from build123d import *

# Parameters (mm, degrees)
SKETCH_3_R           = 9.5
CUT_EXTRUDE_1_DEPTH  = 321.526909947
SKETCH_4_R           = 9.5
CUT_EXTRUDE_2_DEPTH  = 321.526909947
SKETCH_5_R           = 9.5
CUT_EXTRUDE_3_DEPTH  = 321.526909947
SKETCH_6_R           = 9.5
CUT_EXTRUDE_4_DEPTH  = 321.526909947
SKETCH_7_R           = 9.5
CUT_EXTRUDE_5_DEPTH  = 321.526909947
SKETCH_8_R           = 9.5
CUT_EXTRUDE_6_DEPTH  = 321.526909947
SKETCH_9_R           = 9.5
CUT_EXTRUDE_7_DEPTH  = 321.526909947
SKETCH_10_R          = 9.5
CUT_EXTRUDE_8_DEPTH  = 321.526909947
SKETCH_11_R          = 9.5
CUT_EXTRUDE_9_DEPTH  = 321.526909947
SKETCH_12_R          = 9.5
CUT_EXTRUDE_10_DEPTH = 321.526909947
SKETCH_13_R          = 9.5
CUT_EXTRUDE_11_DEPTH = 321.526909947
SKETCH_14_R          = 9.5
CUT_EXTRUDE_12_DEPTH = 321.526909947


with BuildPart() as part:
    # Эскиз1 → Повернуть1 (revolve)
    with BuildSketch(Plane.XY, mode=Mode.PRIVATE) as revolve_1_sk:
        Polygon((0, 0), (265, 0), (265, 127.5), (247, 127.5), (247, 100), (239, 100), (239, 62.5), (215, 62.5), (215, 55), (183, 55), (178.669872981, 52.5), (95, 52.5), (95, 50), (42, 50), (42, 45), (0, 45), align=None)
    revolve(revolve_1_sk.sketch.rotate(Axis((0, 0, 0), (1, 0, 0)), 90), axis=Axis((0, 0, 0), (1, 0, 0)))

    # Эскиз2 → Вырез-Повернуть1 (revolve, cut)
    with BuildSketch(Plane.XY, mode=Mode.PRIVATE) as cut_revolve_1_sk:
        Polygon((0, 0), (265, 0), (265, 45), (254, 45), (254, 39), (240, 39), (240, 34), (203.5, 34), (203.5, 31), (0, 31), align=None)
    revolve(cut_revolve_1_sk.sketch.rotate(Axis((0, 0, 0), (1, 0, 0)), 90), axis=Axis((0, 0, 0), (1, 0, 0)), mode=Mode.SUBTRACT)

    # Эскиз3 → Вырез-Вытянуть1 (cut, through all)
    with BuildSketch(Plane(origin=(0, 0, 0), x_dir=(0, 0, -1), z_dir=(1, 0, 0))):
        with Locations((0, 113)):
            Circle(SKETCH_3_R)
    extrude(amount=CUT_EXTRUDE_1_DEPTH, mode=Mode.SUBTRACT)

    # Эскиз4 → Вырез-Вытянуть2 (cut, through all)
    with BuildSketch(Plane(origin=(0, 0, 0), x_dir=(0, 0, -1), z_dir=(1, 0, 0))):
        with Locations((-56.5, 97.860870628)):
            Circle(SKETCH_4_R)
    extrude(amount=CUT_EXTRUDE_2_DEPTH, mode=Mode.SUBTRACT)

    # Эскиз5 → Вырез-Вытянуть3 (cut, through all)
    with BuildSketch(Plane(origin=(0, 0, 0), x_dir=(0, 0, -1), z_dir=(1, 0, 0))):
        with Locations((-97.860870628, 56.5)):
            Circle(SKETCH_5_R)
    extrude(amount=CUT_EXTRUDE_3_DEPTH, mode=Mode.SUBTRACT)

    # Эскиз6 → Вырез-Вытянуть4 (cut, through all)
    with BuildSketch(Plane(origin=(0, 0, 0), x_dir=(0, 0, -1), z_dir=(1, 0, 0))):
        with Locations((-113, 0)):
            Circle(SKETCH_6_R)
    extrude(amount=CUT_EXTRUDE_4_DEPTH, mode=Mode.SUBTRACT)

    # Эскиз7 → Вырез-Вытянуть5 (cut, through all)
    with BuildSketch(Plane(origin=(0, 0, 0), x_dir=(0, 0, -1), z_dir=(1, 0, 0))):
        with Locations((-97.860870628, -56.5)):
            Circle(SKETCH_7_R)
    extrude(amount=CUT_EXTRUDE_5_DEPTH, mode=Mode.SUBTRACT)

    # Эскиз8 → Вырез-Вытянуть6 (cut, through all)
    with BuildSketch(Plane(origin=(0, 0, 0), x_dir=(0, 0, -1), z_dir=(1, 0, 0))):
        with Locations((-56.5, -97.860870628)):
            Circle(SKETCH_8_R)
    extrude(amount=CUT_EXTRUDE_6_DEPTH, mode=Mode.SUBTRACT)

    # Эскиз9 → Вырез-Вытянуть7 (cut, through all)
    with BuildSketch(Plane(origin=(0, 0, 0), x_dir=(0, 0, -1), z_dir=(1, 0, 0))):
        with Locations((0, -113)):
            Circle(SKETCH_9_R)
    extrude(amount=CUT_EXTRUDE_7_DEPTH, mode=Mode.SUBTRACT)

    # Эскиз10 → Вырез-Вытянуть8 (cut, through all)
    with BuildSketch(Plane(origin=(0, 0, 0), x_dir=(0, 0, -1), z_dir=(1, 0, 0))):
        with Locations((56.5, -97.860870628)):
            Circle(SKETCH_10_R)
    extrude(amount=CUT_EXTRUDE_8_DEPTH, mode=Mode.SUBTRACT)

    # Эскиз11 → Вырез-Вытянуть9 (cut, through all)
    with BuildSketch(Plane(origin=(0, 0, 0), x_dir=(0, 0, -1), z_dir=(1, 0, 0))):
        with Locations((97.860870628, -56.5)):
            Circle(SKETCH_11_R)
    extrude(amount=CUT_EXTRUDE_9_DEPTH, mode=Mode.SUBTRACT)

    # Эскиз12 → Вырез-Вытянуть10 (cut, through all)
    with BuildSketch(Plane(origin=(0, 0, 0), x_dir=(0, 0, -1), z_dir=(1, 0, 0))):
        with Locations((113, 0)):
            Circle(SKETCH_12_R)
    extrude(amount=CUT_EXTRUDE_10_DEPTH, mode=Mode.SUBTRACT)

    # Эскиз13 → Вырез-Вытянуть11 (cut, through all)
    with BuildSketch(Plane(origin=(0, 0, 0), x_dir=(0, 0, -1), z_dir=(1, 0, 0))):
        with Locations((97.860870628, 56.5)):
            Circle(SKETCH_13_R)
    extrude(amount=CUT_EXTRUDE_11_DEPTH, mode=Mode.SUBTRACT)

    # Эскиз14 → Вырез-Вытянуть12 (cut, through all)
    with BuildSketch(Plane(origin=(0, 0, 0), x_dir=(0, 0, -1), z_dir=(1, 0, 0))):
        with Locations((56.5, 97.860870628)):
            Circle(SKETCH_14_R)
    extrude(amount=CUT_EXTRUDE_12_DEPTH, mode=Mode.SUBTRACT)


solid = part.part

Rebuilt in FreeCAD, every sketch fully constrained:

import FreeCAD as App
import Part
import Sketcher
from FreeCAD import Vector
Q = App.Units.Quantity

doc = App.newDocument("Part")
body = doc.addObject("PartDesign::Body", "Body")

sketch1 = doc.addObject("Sketcher::SketchObject", "Sketch")
body.addObject(sketch1)
sketch1.AttachmentSupport = (doc.XY_Plane, [""])
sketch1.MapMode = "FlatFace"
sketch1.addGeometry(Part.LineSegment(Vector(0, 0, 0), Vector(265, 0, 0)), False)
sketch1.addGeometry(Part.LineSegment(Vector(265, 0, 0), Vector(265, 127.5, 0)), False)
sketch1.addGeometry(Part.LineSegment(Vector(265, 127.5, 0), Vector(247, 127.5, 0)), False)
sketch1.addGeometry(Part.LineSegment(Vector(247, 127.5, 0), Vector(247, 100, 0)), False)
sketch1.addGeometry(Part.LineSegment(Vector(247, 100, 0), Vector(239, 100, 0)), False)
sketch1.addGeometry(Part.LineSegment(Vector(239, 100, 0), Vector(239, 62.5, 0)), False)
sketch1.addGeometry(Part.LineSegment(Vector(239, 62.5, 0), Vector(215, 62.5, 0)), False)
sketch1.addGeometry(Part.LineSegment(Vector(215, 62.5, 0), Vector(215, 55, 0)), False)
sketch1.addGeometry(Part.LineSegment(Vector(215, 55, 0), Vector(183, 55, 0)), False)
sketch1.addGeometry(Part.LineSegment(Vector(183, 55, 0), Vector(178.7, 52.5, 0)), False)
sketch1.addGeometry(Part.LineSegment(Vector(178.7, 52.5, 0), Vector(95, 52.5, 0)), False)
sketch1.addGeometry(Part.LineSegment(Vector(95, 52.5, 0), Vector(95, 50, 0)), False)
sketch1.addGeometry(Part.LineSegment(Vector(95, 50, 0), Vector(42, 50, 0)), False)
sketch1.addGeometry(Part.LineSegment(Vector(42, 50, 0), Vector(42, 45, 0)), False)
sketch1.addGeometry(Part.LineSegment(Vector(42, 45, 0), Vector(0, 45, 0)), False)
sketch1.addGeometry(Part.LineSegment(Vector(0, 45, 0), Vector(0, 0, 0)), False)
sketch1.addConstraint(Sketcher.Constraint("Coincident", 0, 2, 1, 1))
sketch1.addConstraint(Sketcher.Constraint("Coincident", 1, 2, 2, 1))
sketch1.addConstraint(Sketcher.Constraint("Coincident", 2, 2, 3, 1))
sketch1.addConstraint(Sketcher.Constraint("Coincident", 3, 2, 4, 1))
sketch1.addConstraint(Sketcher.Constraint("Coincident", 4, 2, 5, 1))
sketch1.addConstraint(Sketcher.Constraint("Coincident", 5, 2, 6, 1))
sketch1.addConstraint(Sketcher.Constraint("Coincident", 6, 2, 7, 1))
sketch1.addConstraint(Sketcher.Constraint("Coincident", 7, 2, 8, 1))
sketch1.addConstraint(Sketcher.Constraint("Coincident", 8, 2, 9, 1))
sketch1.addConstraint(Sketcher.Constraint("Coincident", 9, 2, 10, 1))
sketch1.addConstraint(Sketcher.Constraint("Coincident", 10, 2, 11, 1))
sketch1.addConstraint(Sketcher.Constraint("Coincident", 11, 2, 12, 1))
sketch1.addConstraint(Sketcher.Constraint("Coincident", 12, 2, 13, 1))
sketch1.addConstraint(Sketcher.Constraint("Coincident", 13, 2, 14, 1))
sketch1.addConstraint(Sketcher.Constraint("Coincident", 14, 2, 15, 1))
sketch1.addConstraint(Sketcher.Constraint("Coincident", 15, 2, 0, 1))
sketch1.addConstraint(Sketcher.Constraint("Horizontal", 0))
sketch1.addConstraint(Sketcher.Constraint("Vertical", 1))
sketch1.addConstraint(Sketcher.Constraint("Horizontal", 2))
sketch1.addConstraint(Sketcher.Constraint("Vertical", 3))
sketch1.addConstraint(Sketcher.Constraint("Horizontal", 4))
sketch1.addConstraint(Sketcher.Constraint("Vertical", 5))
sketch1.addConstraint(Sketcher.Constraint("Horizontal", 6))
sketch1.addConstraint(Sketcher.Constraint("Vertical", 7))
sketch1.addConstraint(Sketcher.Constraint("Horizontal", 8))
sketch1.addConstraint(Sketcher.Constraint("Horizontal", 10))
sketch1.addConstraint(Sketcher.Constraint("Vertical", 11))
sketch1.addConstraint(Sketcher.Constraint("Horizontal", 12))
sketch1.addConstraint(Sketcher.Constraint("Vertical", 13))
sketch1.addConstraint(Sketcher.Constraint("Horizontal", 14))
sketch1.addConstraint(Sketcher.Constraint("Vertical", 15))
sketch1.addConstraint(Sketcher.Constraint("Coincident", 15, 2, -1, 1))
sketch1.addConstraint(Sketcher.Constraint("DistanceX", 0, 1, 0, 2, 265.0))
sketch1.addConstraint(Sketcher.Constraint("DistanceX", 2, 2, 2, 1, 18.0))
sketch1.addConstraint(Sketcher.Constraint("DistanceX", 4, 2, 4, 1, 8.0))
sketch1.addConstraint(Sketcher.Constraint("DistanceX", 6, 2, 6, 1, 24.0))
sketch1.addConstraint(Sketcher.Constraint("DistanceX", 8, 2, 8, 1, 32.0))
sketch1.addConstraint(Sketcher.Constraint("DistanceX", 12, 2, 12, 1, 53.0))
sketch1.addConstraint(Sketcher.Constraint("DistanceX", 14, 2, 14, 1, 42.0))
sketch1.addConstraint(Sketcher.Constraint("DistanceY", 13, 2, 13, 1, 5.0))
sketch1.addConstraint(Sketcher.Constraint("DistanceY", 15, 2, 15, 1, 45.0))
sketch1.addConstraint(Sketcher.Constraint("Angle", 9, Q("-150 deg")))
sketch1.addConstraint(Sketcher.Constraint("Distance", 9, 5.0))
sketch1.addConstraint(Sketcher.Constraint("DistanceY", 1, 1, 1, 2, 127.5))
sketch1.addConstraint(Sketcher.Constraint("DistanceY", 3, 2, 3, 1, 27.5))
sketch1.addConstraint(Sketcher.Constraint("DistanceY", 5, 2, 5, 1, 37.5))
sketch1.addConstraint(Sketcher.Constraint("DistanceY", 7, 2, 7, 1, 7.5))
revolution = doc.addObject("PartDesign::Revolution", "Revolution")
body.addObject(revolution)
revolution.Profile = sketch1
revolution.ReferenceAxis = (sketch1, ["H_Axis"])
revolution.Angle = 360

sketch2 = doc.addObject("Sketcher::SketchObject", "Sketch001")
body.addObject(sketch2)
sketch2.AttachmentSupport = (doc.XY_Plane, [""])
sketch2.MapMode = "FlatFace"
sketch2.addGeometry(Part.LineSegment(Vector(0, 0, 0), Vector(265, 0, 0)), False)
sketch2.addGeometry(Part.LineSegment(Vector(265, 0, 0), Vector(265, 45, 0)), False)
sketch2.addGeometry(Part.LineSegment(Vector(265, 45, 0), Vector(254, 45, 0)), False)
sketch2.addGeometry(Part.LineSegment(Vector(254, 45, 0), Vector(254, 39, 0)), False)
sketch2.addGeometry(Part.LineSegment(Vector(254, 39, 0), Vector(240, 39, 0)), False)
sketch2.addGeometry(Part.LineSegment(Vector(240, 39, 0), Vector(240, 34, 0)), False)
sketch2.addGeometry(Part.LineSegment(Vector(240, 34, 0), Vector(203.5, 34, 0)), False)
sketch2.addGeometry(Part.LineSegment(Vector(203.5, 34, 0), Vector(203.5, 31, 0)), False)
sketch2.addGeometry(Part.LineSegment(Vector(203.5, 31, 0), Vector(0, 31, 0)), False)
sketch2.addGeometry(Part.LineSegment(Vector(0, 31, 0), Vector(0, 0, 0)), False)
sketch2.addConstraint(Sketcher.Constraint("Coincident", 0, 2, 1, 1))
sketch2.addConstraint(Sketcher.Constraint("Coincident", 1, 2, 2, 1))
sketch2.addConstraint(Sketcher.Constraint("Coincident", 2, 2, 3, 1))
sketch2.addConstraint(Sketcher.Constraint("Coincident", 3, 2, 4, 1))
sketch2.addConstraint(Sketcher.Constraint("Coincident", 4, 2, 5, 1))
sketch2.addConstraint(Sketcher.Constraint("Coincident", 5, 2, 6, 1))
sketch2.addConstraint(Sketcher.Constraint("Coincident", 6, 2, 7, 1))
sketch2.addConstraint(Sketcher.Constraint("Coincident", 7, 2, 8, 1))
sketch2.addConstraint(Sketcher.Constraint("Coincident", 8, 2, 9, 1))
sketch2.addConstraint(Sketcher.Constraint("Coincident", 9, 2, 0, 1))
sketch2.addConstraint(Sketcher.Constraint("Horizontal", 0))
sketch2.addConstraint(Sketcher.Constraint("Vertical", 1))
sketch2.addConstraint(Sketcher.Constraint("Horizontal", 2))
sketch2.addConstraint(Sketcher.Constraint("Vertical", 3))
sketch2.addConstraint(Sketcher.Constraint("Horizontal", 4))
sketch2.addConstraint(Sketcher.Constraint("Vertical", 5))
sketch2.addConstraint(Sketcher.Constraint("Horizontal", 6))
sketch2.addConstraint(Sketcher.Constraint("Vertical", 7))
sketch2.addConstraint(Sketcher.Constraint("Horizontal", 8))
sketch2.addConstraint(Sketcher.Constraint("Vertical", 9))
sketch2.addConstraint(Sketcher.Constraint("Coincident", 9, 2, -1, 1))
sketch2.addConstraint(Sketcher.Constraint("DistanceX", 0, 1, 0, 2, 265.0))
sketch2.addConstraint(Sketcher.Constraint("DistanceX", 2, 2, 2, 1, 11.0))
sketch2.addConstraint(Sketcher.Constraint("DistanceX", 4, 2, 4, 1, 14.0))
sketch2.addConstraint(Sketcher.Constraint("DistanceY", 1, 1, 1, 2, 45.0))
sketch2.addConstraint(Sketcher.Constraint("DistanceY", 3, 2, 3, 1, 6.0))
sketch2.addConstraint(Sketcher.Constraint("DistanceY", 5, 2, 5, 1, 5.0))
sketch2.addConstraint(Sketcher.Constraint("DistanceY", 7, 2, 7, 1, 3.0))
sketch2.addConstraint(Sketcher.Constraint("DistanceX", 6, 2, 6, 1, 36.5))
groove = doc.addObject("PartDesign::Groove", "Groove")
body.addObject(groove)
groove.Profile = sketch2
groove.ReferenceAxis = (sketch2, ["H_Axis"])
groove.Angle = 360

sketch3 = doc.addObject("Sketcher::SketchObject", "Sketch002")
body.addObject(sketch3)
sketch3.AttachmentSupport = (doc.YZ_Plane, [""])
sketch3.MapMode = "FlatFace"
sketch3.addGeometry(Part.Circle(Vector(113, 0, 0), Vector(0, 0, 1), 10), False)
sketch3.addConstraint(Sketcher.Constraint("PointOnObject", 0, 3, -1))
sketch3.addConstraint(Sketcher.Constraint("Diameter", 0, 19.0))
sketch3.addConstraint(Sketcher.Constraint("DistanceX", -1, 1, 0, 3, 113.0))
pocket1 = doc.addObject("PartDesign::Pocket", "Pocket")
body.addObject(pocket1)
pocket1.Profile = sketch3
pocket1.Type = "ThroughAll"
pocket1.Reversed = True

sketch4 = doc.addObject("Sketcher::SketchObject", "Sketch003")
body.addObject(sketch4)
sketch4.AttachmentSupport = (doc.YZ_Plane, [""])
sketch4.MapMode = "FlatFace"
sketch4.addGeometry(Part.Circle(Vector(98, 56, 0), Vector(0, 0, 1), 10), False)
sketch4.addConstraint(Sketcher.Constraint("Diameter", 0, 19.0))
sketch4.addConstraint(Sketcher.Constraint("DistanceY", -1, 1, 0, 3, 56.5))
sketch4.addConstraint(Sketcher.Constraint("DistanceX", -1, 1, 0, 3, 97.860871))
pocket2 = doc.addObject("PartDesign::Pocket", "Pocket001")
body.addObject(pocket2)
pocket2.Profile = sketch4
pocket2.Type = "ThroughAll"
pocket2.Reversed = True

sketch5 = doc.addObject("Sketcher::SketchObject", "Sketch004")
body.addObject(sketch5)
sketch5.AttachmentSupport = (doc.YZ_Plane, [""])
sketch5.MapMode = "FlatFace"
sketch5.addGeometry(Part.Circle(Vector(56, 98, 0), Vector(0, 0, 1), 10), False)
sketch5.addConstraint(Sketcher.Constraint("Diameter", 0, 19.0))
sketch5.addConstraint(Sketcher.Constraint("DistanceX", -1, 1, 0, 3, 56.5))
sketch5.addConstraint(Sketcher.Constraint("DistanceY", -1, 1, 0, 3, 97.860871))
pocket3 = doc.addObject("PartDesign::Pocket", "Pocket002")
body.addObject(pocket3)
pocket3.Profile = sketch5
pocket3.Type = "ThroughAll"
pocket3.Reversed = True

sketch6 = doc.addObject("Sketcher::SketchObject", "Sketch005")
body.addObject(sketch6)
sketch6.AttachmentSupport = (doc.YZ_Plane, [""])
sketch6.MapMode = "FlatFace"
sketch6.addGeometry(Part.Circle(Vector(0, 113, 0), Vector(0, 0, 1), 10), False)
sketch6.addConstraint(Sketcher.Constraint("PointOnObject", 0, 3, -2))
sketch6.addConstraint(Sketcher.Constraint("Diameter", 0, 19.0))
sketch6.addConstraint(Sketcher.Constraint("DistanceY", -1, 1, 0, 3, 113.0))
pocket4 = doc.addObject("PartDesign::Pocket", "Pocket003")
body.addObject(pocket4)
pocket4.Profile = sketch6
pocket4.Type = "ThroughAll"
pocket4.Reversed = True

sketch7 = doc.addObject("Sketcher::SketchObject", "Sketch006")
body.addObject(sketch7)
sketch7.AttachmentSupport = (doc.YZ_Plane, [""])
sketch7.MapMode = "FlatFace"
sketch7.addGeometry(Part.Circle(Vector(-56, 98, 0), Vector(0, 0, 1), 10), False)
sketch7.addConstraint(Sketcher.Constraint("Diameter", 0, 19.0))
sketch7.addConstraint(Sketcher.Constraint("DistanceX", 0, 3, -1, 1, 56.5))
sketch7.addConstraint(Sketcher.Constraint("DistanceY", -1, 1, 0, 3, 97.860871))
pocket5 = doc.addObject("PartDesign::Pocket", "Pocket004")
body.addObject(pocket5)
pocket5.Profile = sketch7
pocket5.Type = "ThroughAll"
pocket5.Reversed = True

sketch8 = doc.addObject("Sketcher::SketchObject", "Sketch007")
body.addObject(sketch8)
sketch8.AttachmentSupport = (doc.YZ_Plane, [""])
sketch8.MapMode = "FlatFace"
sketch8.addGeometry(Part.Circle(Vector(-98, 56, 0), Vector(0, 0, 1), 10), False)
sketch8.addConstraint(Sketcher.Constraint("Diameter", 0, 19.0))
sketch8.addConstraint(Sketcher.Constraint("DistanceY", -1, 1, 0, 3, 56.5))
sketch8.addConstraint(Sketcher.Constraint("DistanceX", 0, 3, -1, 1, 97.860871))
pocket6 = doc.addObject("PartDesign::Pocket", "Pocket005")
body.addObject(pocket6)
pocket6.Profile = sketch8
pocket6.Type = "ThroughAll"
pocket6.Reversed = True

sketch9 = doc.addObject("Sketcher::SketchObject", "Sketch008")
body.addObject(sketch9)
sketch9.AttachmentSupport = (doc.YZ_Plane, [""])
sketch9.MapMode = "FlatFace"
sketch9.addGeometry(Part.Circle(Vector(-113, 0, 0), Vector(0, 0, 1), 10), False)
sketch9.addConstraint(Sketcher.Constraint("PointOnObject", 0, 3, -1))
sketch9.addConstraint(Sketcher.Constraint("Diameter", 0, 19.0))
sketch9.addConstraint(Sketcher.Constraint("DistanceX", 0, 3, -1, 1, 113.0))
pocket7 = doc.addObject("PartDesign::Pocket", "Pocket006")
body.addObject(pocket7)
pocket7.Profile = sketch9
pocket7.Type = "ThroughAll"
pocket7.Reversed = True

sketch10 = doc.addObject("Sketcher::SketchObject", "Sketch009")
body.addObject(sketch10)
sketch10.AttachmentSupport = (doc.YZ_Plane, [""])
sketch10.MapMode = "FlatFace"
sketch10.addGeometry(Part.Circle(Vector(-98, -56, 0), Vector(0, 0, 1), 10), False)
sketch10.addConstraint(Sketcher.Constraint("Diameter", 0, 19.0))
sketch10.addConstraint(Sketcher.Constraint("DistanceY", 0, 3, -1, 1, 56.5))
sketch10.addConstraint(Sketcher.Constraint("DistanceX", 0, 3, -1, 1, 97.860871))
pocket8 = doc.addObject("PartDesign::Pocket", "Pocket007")
body.addObject(pocket8)
pocket8.Profile = sketch10
pocket8.Type = "ThroughAll"
pocket8.Reversed = True

sketch11 = doc.addObject("Sketcher::SketchObject", "Sketch010")
body.addObject(sketch11)
sketch11.AttachmentSupport = (doc.YZ_Plane, [""])
sketch11.MapMode = "FlatFace"
sketch11.addGeometry(Part.Circle(Vector(-56, -98, 0), Vector(0, 0, 1), 10), False)
sketch11.addConstraint(Sketcher.Constraint("Diameter", 0, 19.0))
sketch11.addConstraint(Sketcher.Constraint("DistanceX", 0, 3, -1, 1, 56.5))
sketch11.addConstraint(Sketcher.Constraint("DistanceY", 0, 3, -1, 1, 97.860871))
pocket9 = doc.addObject("PartDesign::Pocket", "Pocket008")
body.addObject(pocket9)
pocket9.Profile = sketch11
pocket9.Type = "ThroughAll"
pocket9.Reversed = True

sketch12 = doc.addObject("Sketcher::SketchObject", "Sketch011")
body.addObject(sketch12)
sketch12.AttachmentSupport = (doc.YZ_Plane, [""])
sketch12.MapMode = "FlatFace"
sketch12.addGeometry(Part.Circle(Vector(0, -113, 0), Vector(0, 0, 1), 10), False)
sketch12.addConstraint(Sketcher.Constraint("PointOnObject", 0, 3, -2))
sketch12.addConstraint(Sketcher.Constraint("Diameter", 0, 19.0))
sketch12.addConstraint(Sketcher.Constraint("DistanceY", 0, 3, -1, 1, 113.0))
pocket10 = doc.addObject("PartDesign::Pocket", "Pocket009")
body.addObject(pocket10)
pocket10.Profile = sketch12
pocket10.Type = "ThroughAll"
pocket10.Reversed = True

sketch13 = doc.addObject("Sketcher::SketchObject", "Sketch012")
body.addObject(sketch13)
sketch13.AttachmentSupport = (doc.YZ_Plane, [""])
sketch13.MapMode = "FlatFace"
sketch13.addGeometry(Part.Circle(Vector(56, -98, 0), Vector(0, 0, 1), 10), False)
sketch13.addConstraint(Sketcher.Constraint("Diameter", 0, 19.0))
sketch13.addConstraint(Sketcher.Constraint("DistanceX", -1, 1, 0, 3, 56.5))
sketch13.addConstraint(Sketcher.Constraint("DistanceY", 0, 3, -1, 1, 97.860871))
pocket11 = doc.addObject("PartDesign::Pocket", "Pocket010")
body.addObject(pocket11)
pocket11.Profile = sketch13
pocket11.Type = "ThroughAll"
pocket11.Reversed = True

sketch14 = doc.addObject("Sketcher::SketchObject", "Sketch013")
body.addObject(sketch14)
sketch14.AttachmentSupport = (doc.YZ_Plane, [""])
sketch14.MapMode = "FlatFace"
sketch14.addGeometry(Part.Circle(Vector(98, -56, 0), Vector(0, 0, 1), 10), False)
sketch14.addConstraint(Sketcher.Constraint("Diameter", 0, 19.0))
sketch14.addConstraint(Sketcher.Constraint("DistanceY", 0, 3, -1, 1, 56.5))
sketch14.addConstraint(Sketcher.Constraint("DistanceX", -1, 1, 0, 3, 97.860871))
pocket12 = doc.addObject("PartDesign::Pocket", "Pocket011")
body.addObject(pocket12)
pocket12.Profile = sketch14
pocket12.Type = "ThroughAll"
pocket12.Reversed = True

doc.recompute()
